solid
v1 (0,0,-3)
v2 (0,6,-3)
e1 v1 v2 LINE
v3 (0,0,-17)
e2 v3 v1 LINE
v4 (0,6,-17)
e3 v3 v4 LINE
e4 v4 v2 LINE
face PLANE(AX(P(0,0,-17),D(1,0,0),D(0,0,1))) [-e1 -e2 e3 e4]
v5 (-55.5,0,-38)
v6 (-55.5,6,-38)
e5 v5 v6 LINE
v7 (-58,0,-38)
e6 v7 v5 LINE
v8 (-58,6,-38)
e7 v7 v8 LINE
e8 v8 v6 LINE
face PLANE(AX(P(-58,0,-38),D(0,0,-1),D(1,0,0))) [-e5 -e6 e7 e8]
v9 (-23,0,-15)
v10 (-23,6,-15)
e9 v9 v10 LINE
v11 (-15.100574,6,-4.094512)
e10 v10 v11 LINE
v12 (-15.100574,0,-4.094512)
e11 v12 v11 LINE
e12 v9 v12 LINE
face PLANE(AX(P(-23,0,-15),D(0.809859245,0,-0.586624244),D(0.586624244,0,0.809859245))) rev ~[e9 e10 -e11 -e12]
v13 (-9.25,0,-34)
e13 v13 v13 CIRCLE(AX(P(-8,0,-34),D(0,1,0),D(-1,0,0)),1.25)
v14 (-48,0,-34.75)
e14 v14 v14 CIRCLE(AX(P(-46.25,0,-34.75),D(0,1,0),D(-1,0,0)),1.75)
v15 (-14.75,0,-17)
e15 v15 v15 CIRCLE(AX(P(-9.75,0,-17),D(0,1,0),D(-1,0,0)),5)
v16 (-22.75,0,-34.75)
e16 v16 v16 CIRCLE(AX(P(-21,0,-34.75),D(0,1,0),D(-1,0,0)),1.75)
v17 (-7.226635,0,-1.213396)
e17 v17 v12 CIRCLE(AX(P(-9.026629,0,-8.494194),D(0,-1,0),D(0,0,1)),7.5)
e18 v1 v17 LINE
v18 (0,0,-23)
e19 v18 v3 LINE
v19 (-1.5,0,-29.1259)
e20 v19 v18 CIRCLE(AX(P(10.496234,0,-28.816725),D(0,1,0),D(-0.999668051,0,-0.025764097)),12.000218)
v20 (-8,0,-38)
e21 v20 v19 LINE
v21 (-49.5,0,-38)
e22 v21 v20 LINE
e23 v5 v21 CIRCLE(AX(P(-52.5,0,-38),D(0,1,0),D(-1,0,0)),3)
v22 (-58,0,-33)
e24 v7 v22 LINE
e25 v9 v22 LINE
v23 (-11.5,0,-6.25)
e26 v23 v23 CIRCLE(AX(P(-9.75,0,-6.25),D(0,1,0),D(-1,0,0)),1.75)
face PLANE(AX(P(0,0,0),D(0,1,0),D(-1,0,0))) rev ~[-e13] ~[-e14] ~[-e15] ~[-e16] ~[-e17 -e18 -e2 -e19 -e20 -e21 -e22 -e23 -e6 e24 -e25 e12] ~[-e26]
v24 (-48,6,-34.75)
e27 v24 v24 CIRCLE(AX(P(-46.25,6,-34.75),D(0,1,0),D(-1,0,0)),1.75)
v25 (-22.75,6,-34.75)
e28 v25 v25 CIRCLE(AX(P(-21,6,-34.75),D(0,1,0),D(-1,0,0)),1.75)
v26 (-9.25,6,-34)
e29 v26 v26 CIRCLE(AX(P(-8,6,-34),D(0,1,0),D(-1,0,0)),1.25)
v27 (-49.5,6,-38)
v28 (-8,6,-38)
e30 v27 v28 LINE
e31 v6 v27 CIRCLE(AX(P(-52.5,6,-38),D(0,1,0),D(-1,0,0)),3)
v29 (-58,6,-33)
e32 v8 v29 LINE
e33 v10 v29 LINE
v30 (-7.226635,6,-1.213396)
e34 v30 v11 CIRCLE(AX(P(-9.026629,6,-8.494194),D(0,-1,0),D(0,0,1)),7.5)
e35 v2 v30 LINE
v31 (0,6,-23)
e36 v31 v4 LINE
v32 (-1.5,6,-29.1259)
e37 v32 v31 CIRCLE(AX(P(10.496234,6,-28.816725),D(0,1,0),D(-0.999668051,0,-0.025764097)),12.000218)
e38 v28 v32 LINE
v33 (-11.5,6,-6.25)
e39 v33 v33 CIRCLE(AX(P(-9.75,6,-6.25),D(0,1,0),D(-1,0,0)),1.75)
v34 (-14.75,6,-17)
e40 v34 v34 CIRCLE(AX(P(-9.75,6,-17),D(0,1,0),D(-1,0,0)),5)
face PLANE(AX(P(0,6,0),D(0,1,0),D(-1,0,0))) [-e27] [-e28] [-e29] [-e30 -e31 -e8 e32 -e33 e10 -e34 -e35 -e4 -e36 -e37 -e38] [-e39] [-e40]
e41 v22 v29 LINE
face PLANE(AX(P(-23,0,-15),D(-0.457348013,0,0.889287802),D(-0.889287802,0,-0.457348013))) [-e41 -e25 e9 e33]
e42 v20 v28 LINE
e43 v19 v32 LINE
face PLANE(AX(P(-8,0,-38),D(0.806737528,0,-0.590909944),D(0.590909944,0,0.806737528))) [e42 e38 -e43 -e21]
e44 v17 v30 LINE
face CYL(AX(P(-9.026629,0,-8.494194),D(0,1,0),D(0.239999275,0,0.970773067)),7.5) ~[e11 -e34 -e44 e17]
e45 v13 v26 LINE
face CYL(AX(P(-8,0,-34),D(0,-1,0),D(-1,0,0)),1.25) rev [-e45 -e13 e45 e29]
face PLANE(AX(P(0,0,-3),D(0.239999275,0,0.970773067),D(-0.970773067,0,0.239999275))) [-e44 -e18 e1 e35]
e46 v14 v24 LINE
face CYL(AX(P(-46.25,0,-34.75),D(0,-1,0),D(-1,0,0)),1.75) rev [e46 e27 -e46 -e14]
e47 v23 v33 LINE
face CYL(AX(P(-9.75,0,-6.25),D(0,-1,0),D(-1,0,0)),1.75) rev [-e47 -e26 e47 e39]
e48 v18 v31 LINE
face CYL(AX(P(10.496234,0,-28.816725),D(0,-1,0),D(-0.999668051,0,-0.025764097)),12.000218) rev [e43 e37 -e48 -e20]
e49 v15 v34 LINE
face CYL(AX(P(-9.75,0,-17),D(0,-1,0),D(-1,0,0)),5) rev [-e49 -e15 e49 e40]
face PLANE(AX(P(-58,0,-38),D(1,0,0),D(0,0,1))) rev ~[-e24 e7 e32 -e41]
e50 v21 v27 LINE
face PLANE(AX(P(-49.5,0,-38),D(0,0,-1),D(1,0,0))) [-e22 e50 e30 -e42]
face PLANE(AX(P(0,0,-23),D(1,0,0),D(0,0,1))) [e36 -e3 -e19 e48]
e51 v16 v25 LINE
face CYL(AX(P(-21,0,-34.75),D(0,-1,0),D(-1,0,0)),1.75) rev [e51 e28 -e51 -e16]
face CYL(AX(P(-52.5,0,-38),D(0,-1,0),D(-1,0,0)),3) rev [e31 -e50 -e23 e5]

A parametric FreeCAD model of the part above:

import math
import FreeCAD as App
import Part
import Sketcher

V = App.Vector
Q = App.Units.Quantity


def edges_at(feature, points):
    """Names of the edges that pass closest to the given points."""
    edges = feature.Shape.Edges
    near = lambda p: min(range(len(edges)), key=lambda i: edges[i].distToShape(Part.Vertex(*p))[0])
    return sorted({f"Edge{near(p) + 1}" for p in points})

doc = App.newDocument("Part")
body = doc.addObject("PartDesign::Body", "Body")

# Sketch on XZ plane
sketch1 = doc.addObject("Sketcher::SketchObject", "Sketch")
body.addObject(sketch1)
sketch1.AttachmentSupport = (doc.XZ_Plane, [""])
sketch1.MapMode = "FlatFace"
sketch1.addGeometry(Part.LineSegment(V(-1.5, -29.1, 0), V(-8, -38, 0)), False)
sketch1.addGeometry(Part.LineSegment(V(-8, -38, 0), V(-49.5, -38, 0)), False)
sketch1.addGeometry(Part.ArcOfCircle(Part.Circle(V(-52.5, -38, 0), V(0, 0, 1), 3), math.radians(0), math.radians(180)), False)
sketch1.addGeometry(Part.LineSegment(V(-55.5, -38, 0), V(-58, -38, 0)), False)
sketch1.addGeometry(Part.LineSegment(V(-58, -38, 0), V(-58, -33, 0)), False)
sketch1.addGeometry(Part.LineSegment(V(-58, -33, 0), V(-23, -15, 0)), False)
sketch1.addGeometry(Part.LineSegment(V(-23, -15, 0), V(-12.1, 0, 0)), False)
sketch1.addGeometry(Part.LineSegment(V(-12.1, 0, 0), V(0, -3, 0)), False)
sketch1.addGeometry(Part.LineSegment(V(0, -3, 0), V(0, -23, 0)), False)
sketch1.addGeometry(Part.ArcOfCircle(Part.Circle(V(10.5, -28.8, 0), V(0, 0, 1), 12), math.radians(151), math.radians(181)), False)
sketch1.addGeometry(Part.Circle(V(-8, -34, 0), V(0, 0, 1), 1.2), False)
sketch1.addGeometry(Part.Circle(V(-21, -34.8, 0), V(0, 0, 1), 1.8), False)
sketch1.addGeometry(Part.Circle(V(-46.2, -34.8, 0), V(0, 0, 1), 1.8), False)
sketch1.addGeometry(Part.Circle(V(-9.8, -17, 0), V(0, 0, 1), 5), False)
sketch1.addGeometry(Part.Circle(V(-9.8, -6.2, 0), V(0, 0, 1), 1.8), False)
sketch1.addConstraint(Sketcher.Constraint("Coincident", 0, 2, 1, 1))
sketch1.addConstraint(Sketcher.Constraint("Coincident", 1, 2, 2, 1))
sketch1.addConstraint(Sketcher.Constraint("Coincident", 2, 2, 3, 1))
sketch1.addConstraint(Sketcher.Constraint("Coincident", 3, 2, 4, 1))
sketch1.addConstraint(Sketcher.Constraint("Coincident", 4, 2, 5, 1))
sketch1.addConstraint(Sketcher.Constraint("Coincident", 5, 2, 6, 1))
sketch1.addConstraint(Sketcher.Constraint("Coincident", 6, 2, 7, 1))
sketch1.addConstraint(Sketcher.Constraint("Coincident", 7, 2, 8, 1))
sketch1.addConstraint(Sketcher.Constraint("Coincident", 8, 2, 9, 1))
sketch1.addConstraint(Sketcher.Constraint("Coincident", 9, 2, 0, 1))
sketch1.addConstraint(Sketcher.Constraint("Horizontal", 1))
sketch1.addConstraint(Sketcher.Constraint("Horizontal", 3))
sketch1.addConstraint(Sketcher.Constraint("Vertical", 4))
sketch1.addConstraint(Sketcher.Constraint("Vertical", 8))
sketch1.addConstraint(Sketcher.Constraint("Equal", 11, 12))
sketch1.addConstraint(Sketcher.Constraint("Equal", 12, 14))
sketch1.addConstraint(Sketcher.Constraint("PointOnObject", 6, 2, -1))
sketch1.addConstraint(Sketcher.Constraint("PointOnObject", 7, 2, -2))
sketch1.addConstraint(Sketcher.Constraint("Horizontal", 11, 3, 12, 3))
sketch1.addConstraint(Sketcher.Constraint("Horizontal", 2, 3, 0, 2))
sketch1.addConstraint(Sketcher.Constraint("Horizontal", 1, 2, 2, 2))
sketch1.addConstraint(Sketcher.Constraint("Vertical", 13, 3, 14, 3))
sketch1.addConstraint(Sketcher.Constraint("Vertical", 10, 3, 0, 2))
sketch1.addConstraint(Sketcher.Constraint("Diameter", 13, Q("10 mm")))
sketch1.addConstraint(Sketcher.Constraint("Radius", 2, Q("3 mm")))
sketch1.addConstraint(Sketcher.Constraint("Radius", 9, Q("12 mm")))
sketch1.addConstraint(Sketcher.Constraint("Diameter", 10, Q("2.5 mm")))
sketch1.addConstraint(Sketcher.Constraint("Diameter", 11, Q("3.5 mm")))
sketch1.addConstraint(Sketcher.Constraint("DistanceY", 8, 2, 8, 1, Q("20 mm")))
sketch1.addConstraint(Sketcher.Constraint("Distance", 0, Q("11 mm")))
sketch1.addConstraint(Sketcher.Constraint("DistanceX", 3, 2, 3, 1, Q("2.5 mm")))
sketch1.addConstraint(Sketcher.Constraint("DistanceY", 13, 3, -1, 1, Q("17 mm")))
sketch1.addConstraint(Sketcher.Constraint("DistanceY", 7, 2, -1, 1, Q("3 mm")))
sketch1.addConstraint(Sketcher.Constraint("DistanceY", 10, 3, 13, 3, Q("17 mm")))
sketch1.addConstraint(Sketcher.Constraint("DistanceY", 5, 2, 7, 2, Q("12 mm")))
sketch1.addConstraint(Sketcher.Constraint("DistanceY", 4, 1, 4, 2, Q("5 mm")))
sketch1.addConstraint(Sketcher.Constraint("DistanceX", 1, 2, 1, 1, Q("41.5 mm")))
sketch1.addConstraint(Sketcher.Constraint("DistanceY", 2, 3, -1, 1, Q("38 mm")))
sketch1.addConstraint(Sketcher.Constraint("DistanceX", 10, 3, -1, 1, Q("8 mm")))
sketch1.addConstraint(Sketcher.Constraint("DistanceX", 11, 3, -1, 1, Q("21 mm")))
sketch1.addConstraint(Sketcher.Constraint("DistanceX", 5, 2, -1, 1, Q("23 mm")))
sketch1.addConstraint(Sketcher.Constraint("Distance", 7, Q("12.5 mm")))
sketch1.addConstraint(Sketcher.Constraint("DistanceX", 9, 2, -1, 1, Q("1.5 mm")))
sketch1.addConstraint(Sketcher.Constraint("DistanceX", 12, 3, 13, 3, Q("36.5 mm")))
sketch1.addConstraint(Sketcher.Constraint("DistanceY", 11, 3, 14, 3, Q("28.5 mm")))
sketch1.addConstraint(Sketcher.Constraint("DistanceY", 11, 3, -1, 1, Q("34.75 mm")))
sketch1.addConstraint(Sketcher.Constraint("DistanceX", 12, 3, -1, 1, Q("46.25 mm")))
pad1 = doc.addObject("PartDesign::Pad", "Pad")
body.addObject(pad1)
pad1.Profile = sketch1
pad1.Length = 6
pad1.Reversed = True
doc.recompute()

fillet = doc.addObject("PartDesign::Fillet", "Fillet")
body.addObject(fillet)
fillet.Base = (pad1, edges_at(pad1, [(-12.135, 3, 0)]))
fillet.Radius = 7.5

doc.recompute()
